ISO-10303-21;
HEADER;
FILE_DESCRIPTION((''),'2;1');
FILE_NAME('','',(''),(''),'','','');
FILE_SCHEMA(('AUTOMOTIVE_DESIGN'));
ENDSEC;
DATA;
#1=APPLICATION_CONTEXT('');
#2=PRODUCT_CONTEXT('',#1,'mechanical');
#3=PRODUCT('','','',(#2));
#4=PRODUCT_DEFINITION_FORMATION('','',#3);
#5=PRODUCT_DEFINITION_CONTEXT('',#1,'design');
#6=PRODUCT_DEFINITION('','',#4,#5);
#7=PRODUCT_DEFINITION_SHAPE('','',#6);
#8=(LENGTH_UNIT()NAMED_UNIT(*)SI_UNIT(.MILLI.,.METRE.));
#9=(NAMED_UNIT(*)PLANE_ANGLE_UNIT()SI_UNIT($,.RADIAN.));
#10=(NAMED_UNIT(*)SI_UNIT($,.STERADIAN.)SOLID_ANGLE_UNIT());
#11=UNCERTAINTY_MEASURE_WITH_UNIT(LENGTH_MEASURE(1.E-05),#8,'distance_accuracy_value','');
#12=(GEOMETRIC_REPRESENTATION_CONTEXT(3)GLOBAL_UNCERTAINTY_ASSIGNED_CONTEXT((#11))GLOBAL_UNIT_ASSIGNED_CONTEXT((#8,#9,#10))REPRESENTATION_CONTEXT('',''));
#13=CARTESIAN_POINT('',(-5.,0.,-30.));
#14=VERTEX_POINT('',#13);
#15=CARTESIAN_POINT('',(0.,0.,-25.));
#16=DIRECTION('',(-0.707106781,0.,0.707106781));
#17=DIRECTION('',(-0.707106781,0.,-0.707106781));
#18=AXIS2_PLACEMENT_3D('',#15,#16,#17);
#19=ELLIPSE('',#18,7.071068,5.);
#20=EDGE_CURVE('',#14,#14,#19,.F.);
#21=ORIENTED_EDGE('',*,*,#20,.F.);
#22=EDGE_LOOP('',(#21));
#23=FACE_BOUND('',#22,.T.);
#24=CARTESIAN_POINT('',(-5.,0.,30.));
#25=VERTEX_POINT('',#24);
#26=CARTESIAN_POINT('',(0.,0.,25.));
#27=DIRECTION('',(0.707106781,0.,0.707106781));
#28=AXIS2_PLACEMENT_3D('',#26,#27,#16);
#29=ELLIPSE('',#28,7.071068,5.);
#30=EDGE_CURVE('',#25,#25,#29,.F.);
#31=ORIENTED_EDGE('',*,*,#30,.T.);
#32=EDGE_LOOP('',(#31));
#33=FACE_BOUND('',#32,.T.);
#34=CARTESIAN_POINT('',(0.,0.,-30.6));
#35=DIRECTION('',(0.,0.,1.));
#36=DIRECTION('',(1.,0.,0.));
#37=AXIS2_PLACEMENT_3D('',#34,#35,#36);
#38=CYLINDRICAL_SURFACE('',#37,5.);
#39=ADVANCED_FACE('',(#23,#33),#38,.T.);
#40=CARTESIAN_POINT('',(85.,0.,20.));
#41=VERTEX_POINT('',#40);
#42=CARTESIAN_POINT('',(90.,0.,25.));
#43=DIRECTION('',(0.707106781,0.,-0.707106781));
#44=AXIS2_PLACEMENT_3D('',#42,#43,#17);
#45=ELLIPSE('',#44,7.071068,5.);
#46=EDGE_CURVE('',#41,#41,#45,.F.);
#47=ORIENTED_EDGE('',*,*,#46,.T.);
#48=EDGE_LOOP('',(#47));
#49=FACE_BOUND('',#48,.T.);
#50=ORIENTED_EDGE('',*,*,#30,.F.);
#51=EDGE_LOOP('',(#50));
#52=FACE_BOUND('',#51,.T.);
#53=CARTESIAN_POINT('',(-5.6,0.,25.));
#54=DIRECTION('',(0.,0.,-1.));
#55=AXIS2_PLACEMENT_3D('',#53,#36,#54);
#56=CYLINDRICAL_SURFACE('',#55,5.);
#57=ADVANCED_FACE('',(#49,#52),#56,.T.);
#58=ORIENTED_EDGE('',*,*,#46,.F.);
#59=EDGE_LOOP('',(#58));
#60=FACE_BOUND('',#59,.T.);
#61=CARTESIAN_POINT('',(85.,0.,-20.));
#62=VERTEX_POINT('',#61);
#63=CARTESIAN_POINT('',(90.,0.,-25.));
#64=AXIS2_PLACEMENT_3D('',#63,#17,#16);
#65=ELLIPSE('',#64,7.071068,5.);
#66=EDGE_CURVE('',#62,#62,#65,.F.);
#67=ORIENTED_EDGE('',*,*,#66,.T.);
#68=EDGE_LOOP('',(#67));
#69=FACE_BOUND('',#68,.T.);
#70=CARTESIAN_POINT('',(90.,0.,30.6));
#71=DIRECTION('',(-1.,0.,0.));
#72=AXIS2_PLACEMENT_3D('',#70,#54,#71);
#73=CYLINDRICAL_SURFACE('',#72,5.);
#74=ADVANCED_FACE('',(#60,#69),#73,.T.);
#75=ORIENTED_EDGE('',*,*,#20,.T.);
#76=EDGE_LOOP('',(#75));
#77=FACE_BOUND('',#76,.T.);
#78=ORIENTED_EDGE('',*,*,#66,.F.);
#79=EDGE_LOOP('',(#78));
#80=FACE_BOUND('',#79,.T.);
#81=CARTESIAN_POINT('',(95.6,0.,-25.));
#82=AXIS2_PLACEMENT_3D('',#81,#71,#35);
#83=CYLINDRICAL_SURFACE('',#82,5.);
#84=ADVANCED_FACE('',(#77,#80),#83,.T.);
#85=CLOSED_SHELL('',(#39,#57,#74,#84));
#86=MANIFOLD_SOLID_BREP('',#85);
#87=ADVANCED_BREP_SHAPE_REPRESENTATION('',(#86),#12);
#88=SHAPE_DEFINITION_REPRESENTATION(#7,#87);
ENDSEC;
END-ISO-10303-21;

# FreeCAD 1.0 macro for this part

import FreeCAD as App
import Part
import Sketcher

V = App.Vector


def add_polygon(sketch, points):
    """Adds a closed chain of lines whose ends are joined by coincident constraints."""
    first, n = sketch.GeometryCount, len(points)
    for a, b in zip(points, points[1:] + points[:1]):
        sketch.addGeometry(Part.LineSegment(App.Vector(*a, 0), App.Vector(*b, 0)), False)
    for i in range(n):
        sketch.addConstraint(Sketcher.Constraint("Coincident", first + i, 2, first + (i + 1) % n, 1))

doc = App.newDocument("Part")
body = doc.addObject("PartDesign::Body", "Body")

# Sketch on YZ plane
sketch1 = body.newObject("Sketcher::SketchObject", "Sketch")
sketch1.AttachmentSupport = (doc.getObject("YZ_Plane"), [""])
sketch1.MapMode = "FlatFace"
sketch1.addGeometry(Part.Circle(V(0, 25, 0), V(0, 0, 1), 5), False)
sketch1.addConstraint(Sketcher.Constraint("PointOnObject", 0, 3, -2))
sketch1.addConstraint(Sketcher.Constraint("Diameter", 0, 10.0))
sketch1.addConstraint(Sketcher.Constraint("DistanceY", -1, 1, 0, 3, 25.0))

# Sketch on XZ plane
sketch2 = body.newObject("Sketcher::SketchObject", "Sketch001")
sketch2.AttachmentSupport = (doc.getObject("XZ_Plane"), [""])
sketch2.MapMode = "FlatFace"
add_polygon(sketch2, [(0, 25), (90, 25), (90, -25), (0, -25)])  # lines 0-3
sketch2.addConstraint(Sketcher.Constraint("Horizontal", 0))
sketch2.addConstraint(Sketcher.Constraint("Vertical", 1))
sketch2.addConstraint(Sketcher.Constraint("Horizontal", 2))
sketch2.addConstraint(Sketcher.Constraint("Vertical", 3))
sketch2.addConstraint(Sketcher.Constraint("Symmetric", 2, 2, 3, 2, -1, 1))
sketch2.addConstraint(Sketcher.Constraint("DistanceX", 0, 1, 0, 2, 90.0))
sketch2.addConstraint(Sketcher.Constraint("DistanceY", 1, 2, 1, 1, 50.0))
doc.recompute()

additivepipe = body.newObject("PartDesign::AdditivePipe", "AdditivePipe")
additivepipe.Profile = sketch1
additivepipe.Spine = (sketch2, ["Edge1", "Edge2", "Edge3", "Edge4"])
additivepipe.Transition = "Right corner"

doc.recompute()
